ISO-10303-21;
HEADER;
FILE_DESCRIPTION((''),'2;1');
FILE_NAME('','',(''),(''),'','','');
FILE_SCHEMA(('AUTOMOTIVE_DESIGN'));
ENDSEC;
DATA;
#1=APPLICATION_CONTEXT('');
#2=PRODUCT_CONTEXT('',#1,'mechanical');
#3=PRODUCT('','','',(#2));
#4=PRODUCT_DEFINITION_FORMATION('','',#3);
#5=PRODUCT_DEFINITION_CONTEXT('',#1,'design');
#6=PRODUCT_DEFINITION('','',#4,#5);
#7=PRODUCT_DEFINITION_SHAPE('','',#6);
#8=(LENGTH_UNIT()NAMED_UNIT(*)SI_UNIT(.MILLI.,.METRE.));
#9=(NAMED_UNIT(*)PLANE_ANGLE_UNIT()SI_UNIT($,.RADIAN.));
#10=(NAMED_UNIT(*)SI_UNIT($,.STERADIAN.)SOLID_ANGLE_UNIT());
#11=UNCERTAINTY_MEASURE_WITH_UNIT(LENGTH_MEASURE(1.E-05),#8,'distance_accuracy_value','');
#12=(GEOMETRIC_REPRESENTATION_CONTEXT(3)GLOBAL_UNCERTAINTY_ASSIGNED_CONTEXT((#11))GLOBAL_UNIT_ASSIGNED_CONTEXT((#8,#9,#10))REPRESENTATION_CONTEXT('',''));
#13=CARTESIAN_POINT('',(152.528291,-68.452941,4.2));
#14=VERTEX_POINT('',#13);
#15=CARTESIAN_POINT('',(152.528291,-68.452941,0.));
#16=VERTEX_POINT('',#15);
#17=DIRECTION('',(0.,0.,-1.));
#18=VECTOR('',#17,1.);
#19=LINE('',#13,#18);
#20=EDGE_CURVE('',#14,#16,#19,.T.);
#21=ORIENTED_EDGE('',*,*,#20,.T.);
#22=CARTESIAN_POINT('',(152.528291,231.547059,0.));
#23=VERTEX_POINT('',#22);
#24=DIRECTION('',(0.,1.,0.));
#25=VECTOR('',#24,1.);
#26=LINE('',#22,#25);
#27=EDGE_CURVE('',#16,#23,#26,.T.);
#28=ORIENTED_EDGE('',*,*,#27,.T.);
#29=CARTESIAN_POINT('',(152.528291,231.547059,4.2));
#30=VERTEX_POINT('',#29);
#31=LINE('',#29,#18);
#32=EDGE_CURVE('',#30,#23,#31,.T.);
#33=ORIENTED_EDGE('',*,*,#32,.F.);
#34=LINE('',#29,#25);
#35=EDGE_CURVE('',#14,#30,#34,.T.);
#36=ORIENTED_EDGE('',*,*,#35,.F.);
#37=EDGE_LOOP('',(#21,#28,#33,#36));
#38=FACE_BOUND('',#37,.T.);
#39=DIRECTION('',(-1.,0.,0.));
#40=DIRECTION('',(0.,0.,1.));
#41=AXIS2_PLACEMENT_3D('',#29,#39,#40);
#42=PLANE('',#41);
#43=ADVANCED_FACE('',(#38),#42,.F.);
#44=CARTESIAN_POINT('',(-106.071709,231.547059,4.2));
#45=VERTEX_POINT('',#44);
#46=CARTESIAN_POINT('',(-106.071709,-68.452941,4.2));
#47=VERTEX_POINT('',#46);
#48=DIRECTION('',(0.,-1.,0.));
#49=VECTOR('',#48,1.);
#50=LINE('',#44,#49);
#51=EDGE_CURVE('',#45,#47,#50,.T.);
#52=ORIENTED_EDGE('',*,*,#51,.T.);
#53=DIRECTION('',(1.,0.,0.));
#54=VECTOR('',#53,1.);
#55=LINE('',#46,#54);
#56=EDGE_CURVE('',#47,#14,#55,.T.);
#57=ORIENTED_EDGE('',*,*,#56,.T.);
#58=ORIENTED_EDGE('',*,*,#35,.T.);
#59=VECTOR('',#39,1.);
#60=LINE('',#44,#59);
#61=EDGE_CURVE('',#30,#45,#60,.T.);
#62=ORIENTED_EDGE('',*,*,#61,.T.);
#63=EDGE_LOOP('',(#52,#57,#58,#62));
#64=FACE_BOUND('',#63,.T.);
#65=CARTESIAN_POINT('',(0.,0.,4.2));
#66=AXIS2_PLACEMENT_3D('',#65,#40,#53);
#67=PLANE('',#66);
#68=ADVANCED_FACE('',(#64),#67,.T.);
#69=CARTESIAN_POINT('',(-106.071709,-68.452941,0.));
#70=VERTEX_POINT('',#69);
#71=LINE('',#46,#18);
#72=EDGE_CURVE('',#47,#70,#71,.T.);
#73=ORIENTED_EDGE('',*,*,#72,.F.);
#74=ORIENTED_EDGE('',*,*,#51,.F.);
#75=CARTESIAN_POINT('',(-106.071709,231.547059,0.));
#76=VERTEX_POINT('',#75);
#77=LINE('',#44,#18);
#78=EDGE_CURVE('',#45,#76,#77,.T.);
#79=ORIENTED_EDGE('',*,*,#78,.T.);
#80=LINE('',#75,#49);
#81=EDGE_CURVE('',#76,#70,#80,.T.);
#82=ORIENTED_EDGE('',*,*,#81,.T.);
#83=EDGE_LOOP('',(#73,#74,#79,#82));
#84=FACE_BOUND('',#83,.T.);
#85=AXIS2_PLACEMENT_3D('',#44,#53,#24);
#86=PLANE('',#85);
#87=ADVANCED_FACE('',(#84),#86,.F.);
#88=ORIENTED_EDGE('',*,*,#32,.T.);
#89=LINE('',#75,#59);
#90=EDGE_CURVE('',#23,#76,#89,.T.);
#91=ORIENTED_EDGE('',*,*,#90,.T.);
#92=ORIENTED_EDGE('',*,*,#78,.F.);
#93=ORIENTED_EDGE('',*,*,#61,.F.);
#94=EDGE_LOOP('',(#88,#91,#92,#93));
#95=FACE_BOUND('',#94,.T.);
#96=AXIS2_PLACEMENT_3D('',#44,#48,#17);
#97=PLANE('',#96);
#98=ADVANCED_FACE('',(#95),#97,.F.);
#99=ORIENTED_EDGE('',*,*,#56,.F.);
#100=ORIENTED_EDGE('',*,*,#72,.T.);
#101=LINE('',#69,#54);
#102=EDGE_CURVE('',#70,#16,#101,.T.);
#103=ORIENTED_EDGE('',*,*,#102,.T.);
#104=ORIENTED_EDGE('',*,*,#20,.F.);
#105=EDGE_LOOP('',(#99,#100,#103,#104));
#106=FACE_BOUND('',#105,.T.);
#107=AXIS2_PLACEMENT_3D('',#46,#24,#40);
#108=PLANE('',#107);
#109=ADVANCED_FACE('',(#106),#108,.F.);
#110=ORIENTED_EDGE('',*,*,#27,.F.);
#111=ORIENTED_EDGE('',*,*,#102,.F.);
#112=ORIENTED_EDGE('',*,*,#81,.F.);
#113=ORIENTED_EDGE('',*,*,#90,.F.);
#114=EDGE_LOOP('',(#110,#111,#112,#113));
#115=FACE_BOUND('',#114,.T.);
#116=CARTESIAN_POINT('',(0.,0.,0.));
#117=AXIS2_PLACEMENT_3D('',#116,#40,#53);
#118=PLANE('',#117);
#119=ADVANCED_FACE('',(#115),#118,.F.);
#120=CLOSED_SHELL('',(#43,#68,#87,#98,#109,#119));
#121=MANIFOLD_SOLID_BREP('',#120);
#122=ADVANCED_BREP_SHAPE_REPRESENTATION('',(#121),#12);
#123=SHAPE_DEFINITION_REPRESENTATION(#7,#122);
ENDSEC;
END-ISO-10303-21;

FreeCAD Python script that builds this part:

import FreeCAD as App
import Part
import Sketcher

V = App.Vector


def add_polygon(sketch, points):
    """Adds a closed chain of lines whose ends are joined by coincident constraints."""
    first, n = sketch.GeometryCount, len(points)
    for a, b in zip(points, points[1:] + points[:1]):
        sketch.addGeometry(Part.LineSegment(App.Vector(*a, 0), App.Vector(*b, 0)), False)
    for i in range(n):
        sketch.addConstraint(Sketcher.Constraint("Coincident", first + i, 2, first + (i + 1) % n, 1))

doc = App.newDocument("Part")
body = doc.addObject("PartDesign::Body", "Body")

sketch1 = body.newObject("Sketcher::SketchObject", "Sketch")
sketch1.AttachmentSupport = (doc.getObject("XY_Plane"), [""])
sketch1.MapMode = "FlatFace"
add_polygon(sketch1, [(-106.071709, 231.547059), (-106.071709, -68.452941), (152.528291, -68.452941), (152.528291, 231.547059)])
sketch1.addConstraint([
    Sketcher.Constraint("Vertical", 0),
    Sketcher.Constraint("Horizontal", 1),
    Sketcher.Constraint("Vertical", 2),
    Sketcher.Constraint("Horizontal", 3),
    Sketcher.Constraint("DistanceY", 0, 2, 0, 1, 300.0),
    Sketcher.Constraint("DistanceX", 1, 1, 1, 2, 258.6),
    Sketcher.Constraint("DistanceX", 0, 2, -1, 1, 106.071709),
    Sketcher.Constraint("DistanceY", 0, 2, -1, 1, 68.452941),
])
pad1 = body.newObject("PartDesign::Pad", "Pad")
pad1.Profile = sketch1
pad1.Length = 4.2

doc.recompute()
